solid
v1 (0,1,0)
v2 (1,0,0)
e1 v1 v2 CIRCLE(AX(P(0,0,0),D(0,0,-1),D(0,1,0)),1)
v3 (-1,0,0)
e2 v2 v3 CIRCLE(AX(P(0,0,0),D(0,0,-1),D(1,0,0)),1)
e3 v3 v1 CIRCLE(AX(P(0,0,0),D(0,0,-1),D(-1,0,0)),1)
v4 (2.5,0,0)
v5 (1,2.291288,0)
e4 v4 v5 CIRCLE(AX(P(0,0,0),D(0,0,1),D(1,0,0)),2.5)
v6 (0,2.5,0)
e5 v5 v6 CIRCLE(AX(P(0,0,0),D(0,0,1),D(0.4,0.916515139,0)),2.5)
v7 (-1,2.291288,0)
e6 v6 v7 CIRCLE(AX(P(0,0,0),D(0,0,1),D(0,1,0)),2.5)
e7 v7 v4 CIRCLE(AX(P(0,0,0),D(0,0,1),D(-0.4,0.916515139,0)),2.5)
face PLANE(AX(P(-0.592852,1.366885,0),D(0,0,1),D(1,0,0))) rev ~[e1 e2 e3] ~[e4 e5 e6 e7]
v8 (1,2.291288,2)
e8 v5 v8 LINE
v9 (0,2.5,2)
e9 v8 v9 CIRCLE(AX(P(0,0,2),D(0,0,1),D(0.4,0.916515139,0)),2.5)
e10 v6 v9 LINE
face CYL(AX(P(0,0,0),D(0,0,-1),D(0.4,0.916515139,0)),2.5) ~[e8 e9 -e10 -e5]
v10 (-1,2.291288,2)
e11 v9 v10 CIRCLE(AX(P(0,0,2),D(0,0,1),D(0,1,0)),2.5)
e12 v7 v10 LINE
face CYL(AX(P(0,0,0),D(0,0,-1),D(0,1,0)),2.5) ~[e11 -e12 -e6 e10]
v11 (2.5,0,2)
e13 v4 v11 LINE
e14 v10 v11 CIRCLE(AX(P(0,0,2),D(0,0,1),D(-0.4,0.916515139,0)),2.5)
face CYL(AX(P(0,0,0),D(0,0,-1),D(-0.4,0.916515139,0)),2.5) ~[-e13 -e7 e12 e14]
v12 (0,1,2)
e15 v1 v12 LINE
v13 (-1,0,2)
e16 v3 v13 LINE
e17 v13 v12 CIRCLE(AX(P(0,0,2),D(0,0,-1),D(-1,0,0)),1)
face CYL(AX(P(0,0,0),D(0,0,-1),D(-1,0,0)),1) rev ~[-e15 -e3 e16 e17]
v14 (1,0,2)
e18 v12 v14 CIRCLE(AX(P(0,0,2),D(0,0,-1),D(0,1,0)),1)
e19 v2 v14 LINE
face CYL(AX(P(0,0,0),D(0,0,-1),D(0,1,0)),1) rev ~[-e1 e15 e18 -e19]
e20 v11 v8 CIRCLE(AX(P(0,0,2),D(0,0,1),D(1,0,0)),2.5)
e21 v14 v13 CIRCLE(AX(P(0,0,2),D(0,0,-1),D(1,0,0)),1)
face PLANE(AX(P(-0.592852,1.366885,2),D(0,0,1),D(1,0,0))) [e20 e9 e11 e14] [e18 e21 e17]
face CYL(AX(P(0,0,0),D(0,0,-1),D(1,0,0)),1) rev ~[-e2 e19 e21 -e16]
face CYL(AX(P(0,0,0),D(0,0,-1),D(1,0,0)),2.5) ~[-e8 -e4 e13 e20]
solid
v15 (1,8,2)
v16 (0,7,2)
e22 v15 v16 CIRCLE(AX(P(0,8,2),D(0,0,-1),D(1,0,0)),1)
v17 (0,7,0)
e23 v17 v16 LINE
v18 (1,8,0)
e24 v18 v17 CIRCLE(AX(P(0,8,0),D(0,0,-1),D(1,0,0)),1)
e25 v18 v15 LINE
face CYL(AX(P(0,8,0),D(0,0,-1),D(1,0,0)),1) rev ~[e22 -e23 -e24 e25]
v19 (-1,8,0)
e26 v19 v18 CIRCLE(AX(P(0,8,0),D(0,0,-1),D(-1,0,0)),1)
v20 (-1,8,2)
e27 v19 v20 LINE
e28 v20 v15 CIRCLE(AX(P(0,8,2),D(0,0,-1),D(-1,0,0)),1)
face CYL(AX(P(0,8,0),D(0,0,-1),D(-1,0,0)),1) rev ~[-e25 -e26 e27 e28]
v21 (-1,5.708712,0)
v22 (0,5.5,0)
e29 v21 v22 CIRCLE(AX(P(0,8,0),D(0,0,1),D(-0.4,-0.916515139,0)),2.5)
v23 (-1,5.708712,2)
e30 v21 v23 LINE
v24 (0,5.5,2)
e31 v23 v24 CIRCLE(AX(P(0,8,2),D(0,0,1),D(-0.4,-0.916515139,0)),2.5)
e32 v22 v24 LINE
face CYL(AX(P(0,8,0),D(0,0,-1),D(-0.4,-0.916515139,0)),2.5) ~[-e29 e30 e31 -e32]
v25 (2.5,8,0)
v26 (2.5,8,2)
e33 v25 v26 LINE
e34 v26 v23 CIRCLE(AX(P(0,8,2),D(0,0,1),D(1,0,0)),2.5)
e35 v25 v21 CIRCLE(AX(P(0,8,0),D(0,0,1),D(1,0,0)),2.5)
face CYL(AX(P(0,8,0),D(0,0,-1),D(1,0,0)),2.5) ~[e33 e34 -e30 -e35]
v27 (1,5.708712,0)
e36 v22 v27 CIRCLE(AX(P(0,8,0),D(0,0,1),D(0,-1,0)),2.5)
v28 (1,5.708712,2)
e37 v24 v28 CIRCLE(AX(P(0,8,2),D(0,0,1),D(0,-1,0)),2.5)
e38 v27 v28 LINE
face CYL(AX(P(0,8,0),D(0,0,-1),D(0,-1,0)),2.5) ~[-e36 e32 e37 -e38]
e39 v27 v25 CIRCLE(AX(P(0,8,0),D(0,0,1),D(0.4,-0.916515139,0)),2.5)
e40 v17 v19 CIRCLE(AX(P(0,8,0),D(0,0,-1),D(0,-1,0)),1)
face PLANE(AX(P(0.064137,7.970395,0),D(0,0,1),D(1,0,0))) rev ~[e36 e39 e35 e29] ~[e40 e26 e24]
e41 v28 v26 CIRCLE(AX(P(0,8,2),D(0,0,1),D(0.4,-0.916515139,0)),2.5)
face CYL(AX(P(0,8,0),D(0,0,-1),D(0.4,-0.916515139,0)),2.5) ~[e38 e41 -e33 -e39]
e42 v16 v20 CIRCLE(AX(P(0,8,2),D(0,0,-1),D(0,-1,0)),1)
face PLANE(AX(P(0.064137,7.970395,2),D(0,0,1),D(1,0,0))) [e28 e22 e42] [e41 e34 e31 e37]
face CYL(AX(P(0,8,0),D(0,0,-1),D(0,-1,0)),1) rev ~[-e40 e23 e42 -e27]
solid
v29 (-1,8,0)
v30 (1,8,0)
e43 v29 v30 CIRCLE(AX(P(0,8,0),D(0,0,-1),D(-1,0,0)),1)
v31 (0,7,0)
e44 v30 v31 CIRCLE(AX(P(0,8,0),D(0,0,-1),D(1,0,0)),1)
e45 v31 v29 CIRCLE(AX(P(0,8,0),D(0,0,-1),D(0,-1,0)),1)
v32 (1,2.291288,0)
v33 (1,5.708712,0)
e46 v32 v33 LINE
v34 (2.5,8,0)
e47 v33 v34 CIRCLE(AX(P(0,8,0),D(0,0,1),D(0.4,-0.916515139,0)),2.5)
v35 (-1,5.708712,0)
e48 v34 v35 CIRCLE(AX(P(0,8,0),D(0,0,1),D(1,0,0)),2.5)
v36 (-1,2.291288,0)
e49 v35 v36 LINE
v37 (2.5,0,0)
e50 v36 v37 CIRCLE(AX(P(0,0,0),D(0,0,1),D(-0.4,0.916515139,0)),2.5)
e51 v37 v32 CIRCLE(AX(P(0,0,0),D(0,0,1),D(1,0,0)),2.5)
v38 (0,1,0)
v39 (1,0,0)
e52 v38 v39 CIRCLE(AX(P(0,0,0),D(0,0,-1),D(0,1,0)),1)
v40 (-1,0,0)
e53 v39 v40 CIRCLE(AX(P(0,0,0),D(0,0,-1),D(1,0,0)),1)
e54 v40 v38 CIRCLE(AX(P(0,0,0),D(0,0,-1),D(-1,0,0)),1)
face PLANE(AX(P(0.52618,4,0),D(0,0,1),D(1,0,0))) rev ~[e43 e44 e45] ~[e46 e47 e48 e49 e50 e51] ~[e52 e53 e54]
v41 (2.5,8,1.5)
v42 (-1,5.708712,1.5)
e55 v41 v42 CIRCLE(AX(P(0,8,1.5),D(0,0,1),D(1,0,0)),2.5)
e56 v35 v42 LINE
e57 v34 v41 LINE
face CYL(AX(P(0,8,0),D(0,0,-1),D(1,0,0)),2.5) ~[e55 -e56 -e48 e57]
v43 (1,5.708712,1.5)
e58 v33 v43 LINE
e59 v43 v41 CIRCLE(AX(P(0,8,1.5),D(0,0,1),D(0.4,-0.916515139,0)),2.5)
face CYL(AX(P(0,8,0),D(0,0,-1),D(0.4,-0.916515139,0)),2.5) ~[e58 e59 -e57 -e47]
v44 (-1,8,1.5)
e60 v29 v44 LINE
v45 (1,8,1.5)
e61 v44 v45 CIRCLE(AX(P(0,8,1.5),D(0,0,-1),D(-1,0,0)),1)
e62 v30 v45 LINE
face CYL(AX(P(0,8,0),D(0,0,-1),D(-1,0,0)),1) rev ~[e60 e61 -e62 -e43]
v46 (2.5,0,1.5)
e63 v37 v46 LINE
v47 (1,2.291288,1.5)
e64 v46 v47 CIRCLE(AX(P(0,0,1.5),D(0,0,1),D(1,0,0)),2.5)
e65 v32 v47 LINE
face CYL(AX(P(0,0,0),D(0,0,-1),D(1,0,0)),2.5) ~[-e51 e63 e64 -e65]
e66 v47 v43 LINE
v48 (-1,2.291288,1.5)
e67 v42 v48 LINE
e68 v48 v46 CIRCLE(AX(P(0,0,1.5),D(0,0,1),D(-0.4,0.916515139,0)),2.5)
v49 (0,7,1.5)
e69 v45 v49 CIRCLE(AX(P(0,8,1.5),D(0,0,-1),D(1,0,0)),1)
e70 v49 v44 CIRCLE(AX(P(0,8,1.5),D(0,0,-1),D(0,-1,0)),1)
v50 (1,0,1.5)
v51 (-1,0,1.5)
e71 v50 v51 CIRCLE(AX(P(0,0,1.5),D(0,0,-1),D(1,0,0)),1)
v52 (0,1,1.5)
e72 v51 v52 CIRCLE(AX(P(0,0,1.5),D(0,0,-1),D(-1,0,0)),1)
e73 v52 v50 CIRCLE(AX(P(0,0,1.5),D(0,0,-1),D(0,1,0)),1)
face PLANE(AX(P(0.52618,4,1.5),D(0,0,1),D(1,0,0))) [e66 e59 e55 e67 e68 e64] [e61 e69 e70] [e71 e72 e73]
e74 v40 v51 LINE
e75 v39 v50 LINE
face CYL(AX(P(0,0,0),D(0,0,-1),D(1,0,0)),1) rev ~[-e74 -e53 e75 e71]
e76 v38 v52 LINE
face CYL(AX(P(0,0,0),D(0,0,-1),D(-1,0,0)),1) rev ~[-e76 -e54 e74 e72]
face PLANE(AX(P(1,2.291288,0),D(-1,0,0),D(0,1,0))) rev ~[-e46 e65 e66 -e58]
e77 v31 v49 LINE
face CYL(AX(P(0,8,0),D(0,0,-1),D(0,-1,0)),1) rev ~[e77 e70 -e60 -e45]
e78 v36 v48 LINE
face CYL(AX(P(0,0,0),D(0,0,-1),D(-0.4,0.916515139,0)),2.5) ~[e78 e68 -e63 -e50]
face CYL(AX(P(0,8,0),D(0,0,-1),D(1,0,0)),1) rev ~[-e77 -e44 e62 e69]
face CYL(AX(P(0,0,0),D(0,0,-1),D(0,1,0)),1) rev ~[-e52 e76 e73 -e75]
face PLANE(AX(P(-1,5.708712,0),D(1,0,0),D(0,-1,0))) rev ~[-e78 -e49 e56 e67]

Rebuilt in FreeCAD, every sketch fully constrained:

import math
import FreeCAD as App
import Part
import Sketcher

doc = App.newDocument("Part")
body = doc.addObject("PartDesign::Body", "Body")

sketch1 = body.newObject("Sketcher::SketchObject", "Sketch")
sketch1.AttachmentSupport = (doc.getObject("XY_Plane"), [""])
sketch1.MapMode = "FlatFace"
sketch1.addGeometry([
    Part.ArcOfCircle(Part.Circle(App.Vector(0, 8, 0), App.Vector(0, 0, 1), 2.5), math.radians(0), math.radians(246.421822)),
    Part.ArcOfCircle(Part.Circle(App.Vector(0, 8, 0), App.Vector(0, 0, 1), 2.5), math.radians(-113.578178), math.radians(-90)),
    Part.ArcOfCircle(Part.Circle(App.Vector(0, 8, 0), App.Vector(0, 0, 1), 2.5), math.radians(-90), math.radians(-66.421822)),
    Part.ArcOfCircle(Part.Circle(App.Vector(0, 8, 0), App.Vector(0, 0, 1), 2.5), math.radians(-66.421822), math.radians(0)),
    Part.ArcOfCircle(Part.Circle(App.Vector(0, 8, 0), App.Vector(0, 0, 1), 1), math.radians(180), math.radians(270)),
    Part.ArcOfCircle(Part.Circle(App.Vector(0, 8, 0), App.Vector(0, 0, 1), 1), math.radians(0), math.radians(180)),
    Part.ArcOfCircle(Part.Circle(App.Vector(0, 8, 0), App.Vector(0, 0, 1), 1), math.radians(-90), math.radians(0)),
], False)
sketch1.addConstraint([
    Sketcher.Constraint("Tangent", 0, 2, 1, 1),
    Sketcher.Constraint("Tangent", 1, 2, 2, 1),
    Sketcher.Constraint("Tangent", 2, 2, 3, 1),
    Sketcher.Constraint("Tangent", 3, 2, 0, 1),
    Sketcher.Constraint("Tangent", 4, 1, 5, 2),
    Sketcher.Constraint("Tangent", 5, 1, 6, 2),
    Sketcher.Constraint("Tangent", 6, 1, 4, 2),
    Sketcher.Constraint("Coincident", 4, 3, 0, 3),
    Sketcher.Constraint("Equal", 0, 1),
    Sketcher.Constraint("Symmetric", 0, 2, 2, 2, -2),
    Sketcher.Constraint("PointOnObject", 1, 2, -2),
    Sketcher.Constraint("PointOnObject", 6, 1, -2),
    Sketcher.Constraint("Horizontal", 6, 3, 3, 2),
    Sketcher.Constraint("Horizontal", 3, 2, 4, 1),
    Sketcher.Constraint("Horizontal", 4, 1, 5, 1),
    Sketcher.Constraint("Vertical", 0, 2, 4, 1),
    Sketcher.Constraint("Radius", 4, 1.0),
    Sketcher.Constraint("Radius", 0, 2.5),
    Sketcher.Constraint("DistanceY", -1, 1, 0, 3, 8.0),
])
pad1 = body.newObject("PartDesign::Pad", "Pad")
pad1.Profile = sketch1
pad1.Length = 2
body2 = doc.addObject("PartDesign::Body", "Body001")

sketch2 = body2.newObject("Sketcher::SketchObject", "Sketch001")
sketch2.AttachmentSupport = (doc.getObject("XY_Plane001"), [""])
sketch2.MapMode = "FlatFace"
sketch2.addGeometry([
    Part.ArcOfCircle(Part.Circle(App.Vector(0, 0, 0), App.Vector(0, 0, 1), 2.5), math.radians(90), math.radians(113.578178)),
    Part.ArcOfCircle(Part.Circle(App.Vector(0, 0, 0), App.Vector(0, 0, 1), 2.5), math.radians(113.578178), math.radians(360)),
    Part.ArcOfCircle(Part.Circle(App.Vector(0, 0, 0), App.Vector(0, 0, 1), 2.5), math.radians(0), math.radians(66.421822)),
    Part.ArcOfCircle(Part.Circle(App.Vector(0, 0, 0), App.Vector(0, 0, 1), 2.5), math.radians(66.421822), math.radians(90)),
    Part.ArcOfCircle(Part.Circle(App.Vector(0, 0, 0), App.Vector(0, 0, 1), 1), math.radians(90), math.radians(180)),
    Part.ArcOfCircle(Part.Circle(App.Vector(0, 0, 0), App.Vector(0, 0, 1), 1), math.radians(0), math.radians(90)),
    Part.ArcOfCircle(Part.Circle(App.Vector(0, 0, 0), App.Vector(0, 0, 1), 1), math.radians(180), math.radians(360)),
], False)
sketch2.addConstraint([
    Sketcher.Constraint("Tangent", 0, 2, 1, 1),
    Sketcher.Constraint("Tangent", 1, 2, 2, 1),
    Sketcher.Constraint("Tangent", 2, 2, 3, 1),
    Sketcher.Constraint("Tangent", 3, 2, 0, 1),
    Sketcher.Constraint("Tangent", 4, 1, 5, 2),
    Sketcher.Constraint("Tangent", 5, 1, 6, 2),
    Sketcher.Constraint("Tangent", 6, 1, 4, 2),
    Sketcher.Constraint("Coincident", 0, 3, -1, 1),
    Sketcher.Constraint("Coincident", 4, 3, -1, 1),
    Sketcher.Constraint("Equal", 0, 1),
    Sketcher.Constraint("PointOnObject", 1, 2, -1),
    Sketcher.Constraint("PointOnObject", 3, 2, -2),
    Sketcher.Constraint("PointOnObject", 4, 1, -2),
    Sketcher.Constraint("PointOnObject", 5, 1, -1),
    Sketcher.Constraint("PointOnObject", 6, 1, -1),
    Sketcher.Constraint("Horizontal", 0, 2, 2, 2),
    Sketcher.Constraint("Vertical", 2, 2, 5, 1),
    Sketcher.Constraint("Radius", 4, 1.0),
    Sketcher.Constraint("Radius", 0, 2.5),
])
pad2 = body2.newObject("PartDesign::Pad", "Pad001")
pad2.Profile = sketch2
pad2.Length = 2
body3 = doc.addObject("PartDesign::Body", "Body002")

sketch3 = body3.newObject("Sketcher::SketchObject", "Sketch002")
sketch3.AttachmentSupport = (doc.getObject("XY_Plane002"), [""])
sketch3.MapMode = "FlatFace"
sketch3.addGeometry([
    Part.LineSegment(App.Vector(1, 2.291288, 0), App.Vector(1, 5.708712, 0)),
    Part.ArcOfCircle(Part.Circle(App.Vector(0, 8, 0), App.Vector(0, 0, 1), 2.5), math.radians(-66.421822), math.radians(0)),
    Part.ArcOfCircle(Part.Circle(App.Vector(0, 8, 0), App.Vector(0, 0, 1), 2.5), math.radians(0), math.radians(246.421822)),
    Part.LineSegment(App.Vector(-1, 5.708712, 0), App.Vector(-1, 2.291288, 0)),
    Part.ArcOfCircle(Part.Circle(App.Vector(0, 0, 0), App.Vector(0, 0, 1), 2.5), math.radians(113.578178), math.radians(360)),
    Part.ArcOfCircle(Part.Circle(App.Vector(0, 0, 0), App.Vector(0, 0, 1), 2.5), math.radians(0), math.radians(66.421822)),
    Part.ArcOfCircle(Part.Circle(App.Vector(0, 0, 0), App.Vector(0, 0, 1), 1), math.radians(90), math.radians(180)),
    Part.ArcOfCircle(Part.Circle(App.Vector(0, 0, 0), App.Vector(0, 0, 1), 1), math.radians(0), math.radians(90)),
    Part.ArcOfCircle(Part.Circle(App.Vector(0, 0, 0), App.Vector(0, 0, 1), 1), math.radians(180), math.radians(360)),
    Part.ArcOfCircle(Part.Circle(App.Vector(0, 8, 0), App.Vector(0, 0, 1), 1), math.radians(0), math.radians(180)),
    Part.ArcOfCircle(Part.Circle(App.Vector(0, 8, 0), App.Vector(0, 0, 1), 1), math.radians(-90), math.radians(0)),
    Part.ArcOfCircle(Part.Circle(App.Vector(0, 8, 0), App.Vector(0, 0, 1), 1), math.radians(180), math.radians(270)),
], False)
sketch3.addConstraint([
    Sketcher.Constraint("Coincident", 0, 2, 1, 1),
    Sketcher.Constraint("Tangent", 1, 2, 2, 1),
    Sketcher.Constraint("Coincident", 2, 2, 3, 1),
    Sketcher.Constraint("Coincident", 3, 2, 4, 1),
    Sketcher.Constraint("Tangent", 4, 2, 5, 1),
    Sketcher.Constraint("Coincident", 5, 2, 0, 1),
    Sketcher.Constraint("Tangent", 6, 1, 7, 2),
    Sketcher.Constraint("Tangent", 7, 1, 8, 2),
    Sketcher.Constraint("Tangent", 8, 1, 6, 2),
    Sketcher.Constraint("Tangent", 9, 1, 10, 2),
    Sketcher.Constraint("Tangent", 10, 1, 11, 2),
    Sketcher.Constraint("Tangent", 11, 1, 9, 2),
    Sketcher.Constraint("Vertical", 0),
    Sketcher.Constraint("Vertical", 3),
    Sketcher.Constraint("Coincident", 4, 3, -1, 1),
    Sketcher.Constraint("Coincident", 6, 3, -1, 1),
    Sketcher.Constraint("Coincident", 9, 3, 1, 3),
    Sketcher.Constraint("Equal", 1, 2),
    Sketcher.Constraint("Equal", 2, 4),
    Sketcher.Constraint("Equal", 4, 5),
    Sketcher.Constraint("Equal", 8, 9),
    Sketcher.Constraint("Symmetric", 0, 2, 2, 2, -2),
    Sketcher.Constraint("PointOnObject", 4, 2, -1),
    Sketcher.Constraint("PointOnObject", 6, 1, -2),
    Sketcher.Constraint("PointOnObject", 7, 1, -1),
    Sketcher.Constraint("PointOnObject", 8, 1, -1),
    Sketcher.Constraint("PointOnObject", 10, 1, -2),
    Sketcher.Constraint("Horizontal", 11, 3, 1, 2),
    Sketcher.Constraint("Horizontal", 1, 2, 9, 1),
    Sketcher.Constraint("Horizontal", 9, 1, 11, 1),
    Sketcher.Constraint("Vertical", 5, 2, 7, 1),
    Sketcher.Constraint("Radius", 6, 1.0),
    Sketcher.Constraint("Radius", 1, 2.5),
    Sketcher.Constraint("DistanceY", -1, 1, 1, 3, 8.0),
])
pad3 = body3.newObject("PartDesign::Pad", "Pad002")
pad3.Profile = sketch3
pad3.Length = 1.5

doc.recompute()
